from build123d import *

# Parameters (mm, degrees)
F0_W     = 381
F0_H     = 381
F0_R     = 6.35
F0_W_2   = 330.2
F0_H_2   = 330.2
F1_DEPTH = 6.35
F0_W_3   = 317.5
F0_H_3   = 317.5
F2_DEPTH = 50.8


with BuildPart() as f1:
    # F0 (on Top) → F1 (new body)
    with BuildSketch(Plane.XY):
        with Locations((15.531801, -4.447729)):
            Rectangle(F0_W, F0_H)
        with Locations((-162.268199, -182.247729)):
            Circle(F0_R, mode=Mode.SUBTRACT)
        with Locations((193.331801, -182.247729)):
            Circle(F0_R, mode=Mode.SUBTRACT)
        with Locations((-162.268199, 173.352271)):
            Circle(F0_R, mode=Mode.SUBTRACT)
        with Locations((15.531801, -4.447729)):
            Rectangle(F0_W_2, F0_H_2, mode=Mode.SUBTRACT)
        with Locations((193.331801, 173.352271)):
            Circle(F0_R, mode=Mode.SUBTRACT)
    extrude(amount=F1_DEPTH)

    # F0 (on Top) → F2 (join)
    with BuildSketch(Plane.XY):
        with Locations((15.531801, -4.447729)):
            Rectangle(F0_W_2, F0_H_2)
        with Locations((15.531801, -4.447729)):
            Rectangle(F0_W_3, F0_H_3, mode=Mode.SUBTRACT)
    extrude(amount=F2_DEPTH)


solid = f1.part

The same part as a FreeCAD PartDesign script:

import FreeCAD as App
import Part
import Sketcher
from FreeCAD import Vector
Q = App.Units.Quantity


def add_polygon(sketch, points):
    """Adds a closed chain of lines whose ends are joined by coincident constraints."""
    first, n = sketch.GeometryCount, len(points)
    for a, b in zip(points, points[1:] + points[:1]):
        sketch.addGeometry(Part.LineSegment(App.Vector(*a, 0), App.Vector(*b, 0)), False)
    for i in range(n):
        sketch.addConstraint(Sketcher.Constraint("Coincident", first + i, 2, first + (i + 1) % n, 1))

doc = App.newDocument("Part")
body = doc.addObject("PartDesign::Body", "Body")

# Sketch on XY plane
sketch1 = body.newObject("Sketcher::SketchObject", "Sketch")
sketch1.AttachmentSupport = (doc.getObject("XY_Plane"), [""])
sketch1.MapMode = "FlatFace"
add_polygon(sketch1, [(-175, 186), (-175, -195), (206, -195), (206, 186)])  # lines 0-3
sketch1.addGeometry(Part.Circle(Vector(-162, -182, 0), Vector(0, 0, 1), 6), False)  # 4
sketch1.addGeometry(Part.Circle(Vector(193, -182, 0), Vector(0, 0, 1), 6), False)  # 5
sketch1.addGeometry(Part.Circle(Vector(-162, 173, 0), Vector(0, 0, 1), 6), False)  # 6
add_polygon(sketch1, [(181, -170), (-150, -170), (-150, 161), (181, 161)])  # lines 7-10
sketch1.addGeometry(Part.Circle(Vector(193, 173, 0), Vector(0, 0, 1), 6), False)  # 11
sketch1.addConstraint(Sketcher.Constraint("Vertical", 0))
sketch1.addConstraint(Sketcher.Constraint("Horizontal", 1))
sketch1.addConstraint(Sketcher.Constraint("Vertical", 2))
sketch1.addConstraint(Sketcher.Constraint("Horizontal", 3))
sketch1.addConstraint(Sketcher.Constraint("Horizontal", 7))
sketch1.addConstraint(Sketcher.Constraint("Vertical", 8))
sketch1.addConstraint(Sketcher.Constraint("Horizontal", 9))
sketch1.addConstraint(Sketcher.Constraint("Vertical", 10))
sketch1.addConstraint(Sketcher.Constraint("Equal", 4, 5))
sketch1.addConstraint(Sketcher.Constraint("Equal", 5, 6))
sketch1.addConstraint(Sketcher.Constraint("Equal", 6, 11))
sketch1.addConstraint(Sketcher.Constraint("Horizontal", 4, 3, 5, 3))
sketch1.addConstraint(Sketcher.Constraint("Horizontal", 6, 3, 11, 3))
sketch1.addConstraint(Sketcher.Constraint("Vertical", 4, 3, 6, 3))
sketch1.addConstraint(Sketcher.Constraint("Vertical", 5, 3, 11, 3))
sketch1.addConstraint(Sketcher.Constraint("Equal", 3, 0))
sketch1.addConstraint(Sketcher.Constraint("Equal", 9, 8))
sketch1.addConstraint(Sketcher.Constraint("Diameter", 4, Q("0.5 in")))
sketch1.addConstraint(Sketcher.Constraint("DistanceX", 1, 1, 1, 2, Q("15 in")))
sketch1.addConstraint(Sketcher.Constraint("DistanceX", 7, 2, 7, 1, Q("13 in")))
sketch1.addConstraint(Sketcher.Constraint("DistanceX", 4, 3, 5, 3, Q("14 in")))
sketch1.addConstraint(Sketcher.Constraint("DistanceY", 4, 3, 6, 3, Q("14 in")))
sketch1.addConstraint(Sketcher.Constraint("DistanceX", 0, 2, 7, 2, Q("1 in")))
sketch1.addConstraint(Sketcher.Constraint("DistanceY", 0, 2, 7, 2, Q("1 in")))
sketch1.addConstraint(Sketcher.Constraint("DistanceX", 0, 2, 4, 3, Q("0.5 in")))
sketch1.addConstraint(Sketcher.Constraint("DistanceY", 0, 2, 4, 3, Q("0.5 in")))
sketch1.addConstraint(Sketcher.Constraint("DistanceX", 4, 3, -1, 1, 162.268199))
sketch1.addConstraint(Sketcher.Constraint("DistanceY", 4, 3, -1, 1, 182.247729))
pad1 = body.newObject("PartDesign::Pad", "Pad")
pad1.Profile = sketch1
pad1.Length = Q("0.25 in")

# Sketch on XY plane
sketch2 = body.newObject("Sketcher::SketchObject", "Sketch001")
sketch2.AttachmentSupport = (doc.getObject("XY_Plane"), [""])
sketch2.MapMode = "FlatFace"
add_polygon(sketch2, [(-150, 161), (-150, -170), (181, -170), (181, 161)])  # lines 0-3
add_polygon(sketch2, [(174, -163), (-143, -163), (-143, 154), (174, 154)])  # lines 4-7
sketch2.addConstraint(Sketcher.Constraint("Vertical", 0))
sketch2.addConstraint(Sketcher.Constraint("Horizontal", 1))
sketch2.addConstraint(Sketcher.Constraint("Vertical", 2))
sketch2.addConstraint(Sketcher.Constraint("Horizontal", 3))
sketch2.addConstraint(Sketcher.Constraint("Horizontal", 4))
sketch2.addConstraint(Sketcher.Constraint("Vertical", 5))
sketch2.addConstraint(Sketcher.Constraint("Horizontal", 6))
sketch2.addConstraint(Sketcher.Constraint("Vertical", 7))
sketch2.addConstraint(Sketcher.Constraint("Equal", 3, 0))
sketch2.addConstraint(Sketcher.Constraint("Equal", 6, 5))
sketch2.addConstraint(Sketcher.Constraint("DistanceX", 1, 1, 1, 2, Q("13 in")))
sketch2.addConstraint(Sketcher.Constraint("DistanceX", 4, 2, 4, 1, Q("12.5 in")))
sketch2.addConstraint(Sketcher.Constraint("DistanceX", 0, 2, 4, 2, Q("0.25 in")))
sketch2.addConstraint(Sketcher.Constraint("DistanceY", 0, 2, 4, 2, Q("0.25 in")))
sketch2.addConstraint(Sketcher.Constraint("DistanceX", 0, 2, -1, 1, 149.568199))
sketch2.addConstraint(Sketcher.Constraint("DistanceY", 0, 2, -1, 1, 169.547729))
pad2 = body.newObject("PartDesign::Pad", "Pad001")
pad2.Profile = sketch2
pad2.Length = Q("2 in")

doc.recompute()
